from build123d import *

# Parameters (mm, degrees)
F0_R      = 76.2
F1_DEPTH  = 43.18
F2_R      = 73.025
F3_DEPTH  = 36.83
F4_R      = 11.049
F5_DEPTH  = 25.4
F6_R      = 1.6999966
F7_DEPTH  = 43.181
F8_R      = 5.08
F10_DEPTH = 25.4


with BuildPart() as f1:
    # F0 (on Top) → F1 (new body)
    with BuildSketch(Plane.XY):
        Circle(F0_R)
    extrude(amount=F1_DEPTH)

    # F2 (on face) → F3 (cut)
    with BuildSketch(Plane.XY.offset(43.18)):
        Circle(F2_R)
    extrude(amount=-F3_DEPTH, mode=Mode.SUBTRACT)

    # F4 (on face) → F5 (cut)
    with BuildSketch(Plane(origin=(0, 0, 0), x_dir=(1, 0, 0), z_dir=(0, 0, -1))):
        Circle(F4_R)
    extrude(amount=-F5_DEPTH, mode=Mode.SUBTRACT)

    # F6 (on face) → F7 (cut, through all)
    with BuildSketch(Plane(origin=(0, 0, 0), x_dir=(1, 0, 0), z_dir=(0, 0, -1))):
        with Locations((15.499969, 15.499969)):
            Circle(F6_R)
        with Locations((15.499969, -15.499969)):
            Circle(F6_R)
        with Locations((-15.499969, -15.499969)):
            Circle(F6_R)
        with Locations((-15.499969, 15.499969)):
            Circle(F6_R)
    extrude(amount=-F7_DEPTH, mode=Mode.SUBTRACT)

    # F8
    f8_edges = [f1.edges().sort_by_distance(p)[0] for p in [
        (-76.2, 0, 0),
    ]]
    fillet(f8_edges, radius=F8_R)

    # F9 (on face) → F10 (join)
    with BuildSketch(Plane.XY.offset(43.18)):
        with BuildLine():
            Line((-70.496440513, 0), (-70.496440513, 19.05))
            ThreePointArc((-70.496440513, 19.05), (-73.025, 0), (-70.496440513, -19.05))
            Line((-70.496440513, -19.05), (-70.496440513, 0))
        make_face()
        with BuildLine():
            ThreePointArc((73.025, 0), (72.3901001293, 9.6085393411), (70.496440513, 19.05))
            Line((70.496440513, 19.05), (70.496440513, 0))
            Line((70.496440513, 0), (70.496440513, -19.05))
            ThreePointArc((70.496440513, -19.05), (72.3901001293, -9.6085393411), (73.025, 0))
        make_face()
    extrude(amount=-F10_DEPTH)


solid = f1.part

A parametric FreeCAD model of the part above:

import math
import FreeCAD as App
import Part
import Sketcher

V = App.Vector
Q = App.Units.Quantity


def edges_at(feature, points):
    """Names of the edges that pass closest to the given points."""
    edges = feature.Shape.Edges
    near = lambda p: min(range(len(edges)), key=lambda i: edges[i].distToShape(Part.Vertex(*p))[0])
    return sorted({f"Edge{near(p) + 1}" for p in points})

doc = App.newDocument("Part")
body = doc.addObject("PartDesign::Body", "Body")

# Sketch on XY plane
sketch1 = body.newObject("Sketcher::SketchObject", "Sketch")
sketch1.AttachmentSupport = (doc.getObject("XY_Plane"), [""])
sketch1.MapMode = "FlatFace"
sketch1.addGeometry(Part.Circle(V(0, 0, 0), V(0, 0, 1), 76), False)
sketch1.addConstraint([
    Sketcher.Constraint("Coincident", 0, 3, -1, 1),
    Sketcher.Constraint("Diameter", 0, Q("6 in")),
])
pad1 = body.newObject("PartDesign::Pad", "Pad")
pad1.Profile = sketch1
pad1.Length = Q("1.7 in")

# Sketch on XY plane
sketch2 = body.newObject("Sketcher::SketchObject", "Sketch001")
sketch2.AttachmentSupport = (doc.getObject("XY_Plane"), [""])
sketch2.MapMode = "FlatFace"
sketch2.AttachmentOffset = App.Placement(V(0, 0, 1.7 * 25.4), App.Rotation())
sketch2.addGeometry(Part.Circle(V(0, 0, 0), V(0, 0, 1), 73), False)
sketch2.addConstraint([
    Sketcher.Constraint("Coincident", 0, 3, -1, 1),
    Sketcher.Constraint("Diameter", 0, Q("5.75 in")),
])
pocket1 = body.newObject("PartDesign::Pocket", "Pocket")
pocket1.Profile = sketch2
pocket1.Length = Q("1.45 in")

# Sketch on XY plane
sketch3 = body.newObject("Sketcher::SketchObject", "Sketch002")
sketch3.AttachmentSupport = (doc.getObject("XY_Plane"), [""])
sketch3.MapMode = "FlatFace"
sketch3.addGeometry(Part.Circle(V(0, 0, 0), V(0, 0, 1), 11), False)
sketch3.addConstraint([
    Sketcher.Constraint("Coincident", 0, 3, -1, 1),
    Sketcher.Constraint("Diameter", 0, Q("0.87 in")),
])
pocket2 = body.newObject("PartDesign::Pocket", "Pocket001")
pocket2.Profile = sketch3
pocket2.Length = Q("1 in")
pocket2.Reversed = True

# Sketch on XY plane
sketch4 = body.newObject("Sketcher::SketchObject", "Sketch003")
sketch4.AttachmentSupport = (doc.getObject("XY_Plane"), [""])
sketch4.MapMode = "FlatFace"
sketch4.addGeometry([
    Part.Circle(V(15.499969, -15.499969, 0), V(0, 0, 1), 1.699997),
    Part.Circle(V(15.499969, 15.499969, 0), V(0, 0, 1), 1.699997),
    Part.Circle(V(-15.499969, 15.499969, 0), V(0, 0, 1), 1.699997),
    Part.Circle(V(-15.499969, -15.499969, 0), V(0, 0, 1), 1.699997),
], False)
sketch4.addConstraint([
    Sketcher.Constraint("Equal", 0, 1),
    Sketcher.Constraint("Equal", 1, 2),
    Sketcher.Constraint("Equal", 2, 3),
    Sketcher.Constraint("Symmetric", 0, 3, 2, 3, -1, 1),
    Sketcher.Constraint("Symmetric", 1, 3, 3, 3, -1, 1),
    Sketcher.Constraint("Symmetric", 1, 3, 2, 3, -2),
    Sketcher.Constraint("Diameter", 0, Q("3.399993 mm")),
    Sketcher.Constraint("DistanceX", -1, 1, 0, 3, Q("15.499969 mm")),
    Sketcher.Constraint("DistanceY", 0, 3, -1, 1, Q("15.499969 mm")),
])
pocket3 = body.newObject("PartDesign::Pocket", "Pocket002")
pocket3.Profile = sketch4
pocket3.Type = "ThroughAll"
pocket3.Reversed = True
doc.recompute()

fillet = body.newObject("PartDesign::Fillet", "Fillet")
fillet.Base = (pocket3, edges_at(pocket3, [(-76.2, 0, 0)]))
fillet.Radius = Q("0.2 in")

# Sketch on XY plane
sketch5 = body.newObject("Sketcher::SketchObject", "Sketch004")
sketch5.AttachmentSupport = (doc.getObject("XY_Plane"), [""])
sketch5.MapMode = "FlatFace"
sketch5.AttachmentOffset = App.Placement(V(0, 0, 1.7 * 25.4), App.Rotation())
sketch5.addGeometry([
    Part.ArcOfCircle(Part.Circle(V(0, 0, 0), V(0, 0, 1), 73), math.radians(165), math.radians(195)),  # 0
    Part.LineSegment(V(-70, -19, 0), V(-70, 19, 0)),  # 1
    Part.ArcOfCircle(Part.Circle(V(0, 0, 0), V(0, 0, 1), 73), math.radians(0), math.radians(15.12)),  # 2
    Part.LineSegment(V(70, 19, 0), V(70, -19, 0)),  # 3
    Part.ArcOfCircle(Part.Circle(V(0, 0, 0), V(0, 0, 1), 73), math.radians(-15.12), math.radians(0)),  # 4
], False)
sketch5.addConstraint([
    Sketcher.Constraint("Coincident", 0, 1, 1, 2),
    Sketcher.Constraint("Coincident", 1, 1, 0, 2),
    Sketcher.Constraint("Coincident", 2, 2, 3, 1),
    Sketcher.Constraint("Coincident", 3, 2, 4, 1),
    Sketcher.Constraint("Tangent", 4, 2, 2, 1),
    Sketcher.Constraint("Vertical", 1),
    Sketcher.Constraint("Vertical", 3),
    Sketcher.Constraint("Coincident", 0, 3, -1, 1),
    Sketcher.Constraint("Coincident", 2, 3, -1, 1),
    Sketcher.Constraint("Equal", 0, 2),
    Sketcher.Constraint("Equal", 2, 4),
    Sketcher.Constraint("PointOnObject", 4, 2, -1),
    Sketcher.Constraint("Horizontal", 0, 1, 2, 2),
    Sketcher.Constraint("DistanceY", 1, 1, 1, 2, Q("1.5 in")),
    Sketcher.Constraint("Radius", 0, Q("2.875 in")),
])
pad2 = body.newObject("PartDesign::Pad", "Pad001")
pad2.Profile = sketch5
pad2.Length = Q("1 in")
pad2.Reversed = True

doc.recompute()
